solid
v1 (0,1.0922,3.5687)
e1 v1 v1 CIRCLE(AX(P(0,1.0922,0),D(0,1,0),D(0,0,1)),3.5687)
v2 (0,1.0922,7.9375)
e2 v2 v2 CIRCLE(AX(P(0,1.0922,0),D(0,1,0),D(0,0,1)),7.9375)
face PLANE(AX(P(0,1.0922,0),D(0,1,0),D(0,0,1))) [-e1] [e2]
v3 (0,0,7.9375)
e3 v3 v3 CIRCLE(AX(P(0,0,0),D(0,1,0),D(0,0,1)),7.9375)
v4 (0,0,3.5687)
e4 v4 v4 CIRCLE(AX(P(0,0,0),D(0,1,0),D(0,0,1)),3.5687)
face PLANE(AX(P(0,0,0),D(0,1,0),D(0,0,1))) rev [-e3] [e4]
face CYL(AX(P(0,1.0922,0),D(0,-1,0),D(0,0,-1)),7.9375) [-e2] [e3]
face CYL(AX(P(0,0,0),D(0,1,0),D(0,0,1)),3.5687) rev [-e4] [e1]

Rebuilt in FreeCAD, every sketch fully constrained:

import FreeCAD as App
import Part
import Sketcher

V = App.Vector
Q = App.Units.Quantity

doc = App.newDocument("Part")
params = doc.addObject("Spreadsheet::Sheet", "Params")
for row, (alias, value) in enumerate([
    ("sketch1_diameter", "0.625 in"),
    ("pad1_length", "0.043 in"),
    ("sketch2_diameter", "0.281 in"),
], start=1):
    params.set(f"A{row}", alias)
    params.set(f"B{row}", "=" + value)
    params.setAlias(f"B{row}", alias)

body = doc.addObject("PartDesign::Body", "Body")

sketch1 = body.newObject("Sketcher::SketchObject", "Sketch")
sketch1.AttachmentSupport = (doc.getObject("XZ_Plane"), [""])
sketch1.MapMode = "FlatFace"
sketch1.addGeometry(Part.Circle(V(0, 0, 0), V(0, 0, 1), 8), False)
sketch1.addConstraint([
    Sketcher.Constraint("Coincident", 0, 3, -1, 1),
    Sketcher.Constraint("Diameter", 0, Q("0.625 in")),
])
sketch1.setExpression("Constraints[1]", "Params.sketch1_diameter")
pad1 = body.newObject("PartDesign::Pad", "Pad")
pad1.Profile = sketch1
pad1.setExpression("Length", "Params.pad1_length")
pad1.Reversed = True

sketch2 = body.newObject("Sketcher::SketchObject", "Sketch001")
sketch2.AttachmentSupport = (doc.getObject("XZ_Plane"), [""])
sketch2.MapMode = "FlatFace"
sketch2.AttachmentOffset = App.Placement(V(0, 0, -0.043 * 25.4), App.Rotation())
sketch2.addGeometry(Part.Circle(V(0, 0, 0), V(0, 0, 1), 3.6), False)
sketch2.addConstraint([
    Sketcher.Constraint("Coincident", 0, 3, -1, 1),
    Sketcher.Constraint("Diameter", 0, Q("0.281 in")),
])
sketch2.setExpression("Constraints[1]", "Params.sketch2_diameter")
pocket1 = body.newObject("PartDesign::Pocket", "Pocket")
pocket1.Profile = sketch2
pocket1.Type = "ThroughAll"
pocket1.Reversed = True

doc.recompute()
